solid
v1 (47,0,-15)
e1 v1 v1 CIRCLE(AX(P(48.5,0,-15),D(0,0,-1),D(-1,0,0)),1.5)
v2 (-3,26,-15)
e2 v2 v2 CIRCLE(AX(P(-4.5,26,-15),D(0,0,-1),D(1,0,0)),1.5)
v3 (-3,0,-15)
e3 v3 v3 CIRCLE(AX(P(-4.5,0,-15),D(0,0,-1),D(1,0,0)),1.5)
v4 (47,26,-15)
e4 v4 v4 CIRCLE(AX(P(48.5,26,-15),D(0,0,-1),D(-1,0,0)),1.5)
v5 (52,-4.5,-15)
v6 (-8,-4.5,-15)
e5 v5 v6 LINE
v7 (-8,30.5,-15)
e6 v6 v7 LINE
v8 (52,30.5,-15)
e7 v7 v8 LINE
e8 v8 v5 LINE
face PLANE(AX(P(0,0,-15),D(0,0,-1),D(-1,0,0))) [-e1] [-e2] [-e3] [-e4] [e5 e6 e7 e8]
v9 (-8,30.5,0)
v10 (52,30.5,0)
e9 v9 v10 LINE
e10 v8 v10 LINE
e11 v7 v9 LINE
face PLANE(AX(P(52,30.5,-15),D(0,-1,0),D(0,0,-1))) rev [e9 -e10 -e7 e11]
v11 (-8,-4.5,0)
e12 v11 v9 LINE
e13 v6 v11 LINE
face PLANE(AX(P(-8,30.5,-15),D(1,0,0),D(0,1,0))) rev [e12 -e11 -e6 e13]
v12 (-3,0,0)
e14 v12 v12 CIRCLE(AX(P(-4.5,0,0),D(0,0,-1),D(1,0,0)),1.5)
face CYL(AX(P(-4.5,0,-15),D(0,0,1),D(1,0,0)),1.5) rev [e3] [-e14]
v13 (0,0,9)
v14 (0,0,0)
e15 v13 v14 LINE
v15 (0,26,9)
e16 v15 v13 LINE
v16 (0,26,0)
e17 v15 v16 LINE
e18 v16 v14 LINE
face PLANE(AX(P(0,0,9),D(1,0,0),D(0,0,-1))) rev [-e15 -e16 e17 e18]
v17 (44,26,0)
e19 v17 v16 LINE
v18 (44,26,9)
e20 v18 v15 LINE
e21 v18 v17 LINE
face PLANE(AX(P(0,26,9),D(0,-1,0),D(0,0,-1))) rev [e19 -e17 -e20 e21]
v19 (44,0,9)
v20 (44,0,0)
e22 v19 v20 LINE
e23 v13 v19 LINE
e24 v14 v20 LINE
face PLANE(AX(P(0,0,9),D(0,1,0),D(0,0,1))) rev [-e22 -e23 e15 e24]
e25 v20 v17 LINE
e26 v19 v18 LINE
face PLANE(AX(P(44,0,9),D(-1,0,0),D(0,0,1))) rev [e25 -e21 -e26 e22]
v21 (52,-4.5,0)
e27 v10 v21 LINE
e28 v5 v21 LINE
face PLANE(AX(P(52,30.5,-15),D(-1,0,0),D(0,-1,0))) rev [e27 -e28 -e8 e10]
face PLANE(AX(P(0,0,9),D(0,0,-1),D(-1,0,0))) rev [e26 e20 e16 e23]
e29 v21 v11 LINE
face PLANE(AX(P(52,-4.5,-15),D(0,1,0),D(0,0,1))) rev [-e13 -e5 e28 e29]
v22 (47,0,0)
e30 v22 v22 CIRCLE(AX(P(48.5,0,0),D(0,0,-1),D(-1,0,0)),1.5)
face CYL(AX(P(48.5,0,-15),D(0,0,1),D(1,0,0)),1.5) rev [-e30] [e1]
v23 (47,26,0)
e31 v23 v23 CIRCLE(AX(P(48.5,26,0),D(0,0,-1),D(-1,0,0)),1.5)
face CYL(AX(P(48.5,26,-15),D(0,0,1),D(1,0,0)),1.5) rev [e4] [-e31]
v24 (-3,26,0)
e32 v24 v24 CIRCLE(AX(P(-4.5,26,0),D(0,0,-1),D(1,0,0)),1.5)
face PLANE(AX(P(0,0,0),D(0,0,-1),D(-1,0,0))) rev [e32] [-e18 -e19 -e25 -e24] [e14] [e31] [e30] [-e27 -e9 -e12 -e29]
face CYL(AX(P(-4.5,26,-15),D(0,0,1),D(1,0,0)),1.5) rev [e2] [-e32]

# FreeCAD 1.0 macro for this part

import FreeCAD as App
import Part
import Sketcher

V = App.Vector
Q = App.Units.Quantity

doc = App.newDocument("Part")
body = doc.addObject("PartDesign::Body", "Body")

sketch1 = doc.addObject("Sketcher::SketchObject", "Sketch")
body.addObject(sketch1)
sketch1.AttachmentSupport = (doc.XY_Plane, [""])
sketch1.MapMode = "FlatFace"
sketch1.addGeometry([
    Part.LineSegment(V(0, 26, 0), V(0, 0, 0)),
    Part.LineSegment(V(0, 0, 0), V(44, 0, 0)),
    Part.LineSegment(V(44, 0, 0), V(44, 26, 0)),
    Part.LineSegment(V(44, 26, 0), V(0, 26, 0)),
], False)
sketch1.addConstraint([
    Sketcher.Constraint("Coincident", 0, 2, 1, 1),
    Sketcher.Constraint("Coincident", 1, 2, 2, 1),
    Sketcher.Constraint("Coincident", 2, 2, 3, 1),
    Sketcher.Constraint("Coincident", 3, 2, 0, 1),
    Sketcher.Constraint("Vertical", 0),
    Sketcher.Constraint("Horizontal", 1),
    Sketcher.Constraint("Vertical", 2),
    Sketcher.Constraint("Horizontal", 3),
    Sketcher.Constraint("Coincident", 0, 2, -1, 1),
    Sketcher.Constraint("DistanceX", 1, 1, 1, 2, Q("44 mm")),
    Sketcher.Constraint("DistanceY", 0, 2, 0, 1, Q("26 mm")),
])
pad1 = doc.addObject("PartDesign::Pad", "Pad")
body.addObject(pad1)
pad1.Profile = sketch1
pad1.Length = 9

sketch2 = doc.addObject("Sketcher::SketchObject", "Sketch001")
body.addObject(sketch2)
sketch2.AttachmentSupport = (doc.XY_Plane, [""])
sketch2.MapMode = "FlatFace"
sketch2.addGeometry([
    Part.LineSegment(V(52, 30.5, 0), V(52, -4.5, 0)),
    Part.LineSegment(V(52, -4.5, 0), V(-8, -4.5, 0)),
    Part.LineSegment(V(-8, -4.5, 0), V(-8, 30.5, 0)),
    Part.LineSegment(V(-8, 30.5, 0), V(52, 30.5, 0)),
    Part.Circle(V(48.5, 0, 0), V(0, 0, 1), 1.5),
    Part.Circle(V(-4.5, 0, 0), V(0, 0, 1), 1.5),
    Part.Circle(V(48.5, 26, 0), V(0, 0, 1), 1.5),
    Part.Circle(V(-4.5, 26, 0), V(0, 0, 1), 1.5),
], False)
sketch2.addConstraint([
    Sketcher.Constraint("Coincident", 0, 2, 1, 1),
    Sketcher.Constraint("Coincident", 1, 2, 2, 1),
    Sketcher.Constraint("Coincident", 2, 2, 3, 1),
    Sketcher.Constraint("Coincident", 3, 2, 0, 1),
    Sketcher.Constraint("Vertical", 0),
    Sketcher.Constraint("Horizontal", 1),
    Sketcher.Constraint("Vertical", 2),
    Sketcher.Constraint("Horizontal", 3),
    Sketcher.Constraint("Equal", 4, 5),
    Sketcher.Constraint("Equal", 5, 6),
    Sketcher.Constraint("Equal", 6, 7),
    Sketcher.Constraint("PointOnObject", 4, 3, -1),
    Sketcher.Constraint("PointOnObject", 5, 3, -1),
    Sketcher.Constraint("Horizontal", 6, 3, 7, 3),
    Sketcher.Constraint("Vertical", 4, 3, 6, 3),
    Sketcher.Constraint("Vertical", 5, 3, 7, 3),
    Sketcher.Constraint("Diameter", 4, Q("3 mm")),
    Sketcher.Constraint("DistanceX", 1, 2, 1, 1, Q("60 mm")),
    Sketcher.Constraint("DistanceY", 0, 2, 0, 1, Q("35 mm")),
    Sketcher.Constraint("DistanceY", -1, 1, 6, 3, Q("26 mm")),
    Sketcher.Constraint("DistanceX", -1, 1, 0, 2, Q("52 mm")),
    Sketcher.Constraint("DistanceX", 5, 3, 4, 3, Q("53 mm")),
    Sketcher.Constraint("DistanceX", -1, 1, 4, 3, Q("48.5 mm")),
    Sketcher.Constraint("DistanceY", 0, 2, -1, 1, Q("4.5 mm")),
])
pad2 = doc.addObject("PartDesign::Pad", "Pad001")
body.addObject(pad2)
pad2.Profile = sketch2
pad2.Length = 15
pad2.Reversed = True

doc.recompute()
